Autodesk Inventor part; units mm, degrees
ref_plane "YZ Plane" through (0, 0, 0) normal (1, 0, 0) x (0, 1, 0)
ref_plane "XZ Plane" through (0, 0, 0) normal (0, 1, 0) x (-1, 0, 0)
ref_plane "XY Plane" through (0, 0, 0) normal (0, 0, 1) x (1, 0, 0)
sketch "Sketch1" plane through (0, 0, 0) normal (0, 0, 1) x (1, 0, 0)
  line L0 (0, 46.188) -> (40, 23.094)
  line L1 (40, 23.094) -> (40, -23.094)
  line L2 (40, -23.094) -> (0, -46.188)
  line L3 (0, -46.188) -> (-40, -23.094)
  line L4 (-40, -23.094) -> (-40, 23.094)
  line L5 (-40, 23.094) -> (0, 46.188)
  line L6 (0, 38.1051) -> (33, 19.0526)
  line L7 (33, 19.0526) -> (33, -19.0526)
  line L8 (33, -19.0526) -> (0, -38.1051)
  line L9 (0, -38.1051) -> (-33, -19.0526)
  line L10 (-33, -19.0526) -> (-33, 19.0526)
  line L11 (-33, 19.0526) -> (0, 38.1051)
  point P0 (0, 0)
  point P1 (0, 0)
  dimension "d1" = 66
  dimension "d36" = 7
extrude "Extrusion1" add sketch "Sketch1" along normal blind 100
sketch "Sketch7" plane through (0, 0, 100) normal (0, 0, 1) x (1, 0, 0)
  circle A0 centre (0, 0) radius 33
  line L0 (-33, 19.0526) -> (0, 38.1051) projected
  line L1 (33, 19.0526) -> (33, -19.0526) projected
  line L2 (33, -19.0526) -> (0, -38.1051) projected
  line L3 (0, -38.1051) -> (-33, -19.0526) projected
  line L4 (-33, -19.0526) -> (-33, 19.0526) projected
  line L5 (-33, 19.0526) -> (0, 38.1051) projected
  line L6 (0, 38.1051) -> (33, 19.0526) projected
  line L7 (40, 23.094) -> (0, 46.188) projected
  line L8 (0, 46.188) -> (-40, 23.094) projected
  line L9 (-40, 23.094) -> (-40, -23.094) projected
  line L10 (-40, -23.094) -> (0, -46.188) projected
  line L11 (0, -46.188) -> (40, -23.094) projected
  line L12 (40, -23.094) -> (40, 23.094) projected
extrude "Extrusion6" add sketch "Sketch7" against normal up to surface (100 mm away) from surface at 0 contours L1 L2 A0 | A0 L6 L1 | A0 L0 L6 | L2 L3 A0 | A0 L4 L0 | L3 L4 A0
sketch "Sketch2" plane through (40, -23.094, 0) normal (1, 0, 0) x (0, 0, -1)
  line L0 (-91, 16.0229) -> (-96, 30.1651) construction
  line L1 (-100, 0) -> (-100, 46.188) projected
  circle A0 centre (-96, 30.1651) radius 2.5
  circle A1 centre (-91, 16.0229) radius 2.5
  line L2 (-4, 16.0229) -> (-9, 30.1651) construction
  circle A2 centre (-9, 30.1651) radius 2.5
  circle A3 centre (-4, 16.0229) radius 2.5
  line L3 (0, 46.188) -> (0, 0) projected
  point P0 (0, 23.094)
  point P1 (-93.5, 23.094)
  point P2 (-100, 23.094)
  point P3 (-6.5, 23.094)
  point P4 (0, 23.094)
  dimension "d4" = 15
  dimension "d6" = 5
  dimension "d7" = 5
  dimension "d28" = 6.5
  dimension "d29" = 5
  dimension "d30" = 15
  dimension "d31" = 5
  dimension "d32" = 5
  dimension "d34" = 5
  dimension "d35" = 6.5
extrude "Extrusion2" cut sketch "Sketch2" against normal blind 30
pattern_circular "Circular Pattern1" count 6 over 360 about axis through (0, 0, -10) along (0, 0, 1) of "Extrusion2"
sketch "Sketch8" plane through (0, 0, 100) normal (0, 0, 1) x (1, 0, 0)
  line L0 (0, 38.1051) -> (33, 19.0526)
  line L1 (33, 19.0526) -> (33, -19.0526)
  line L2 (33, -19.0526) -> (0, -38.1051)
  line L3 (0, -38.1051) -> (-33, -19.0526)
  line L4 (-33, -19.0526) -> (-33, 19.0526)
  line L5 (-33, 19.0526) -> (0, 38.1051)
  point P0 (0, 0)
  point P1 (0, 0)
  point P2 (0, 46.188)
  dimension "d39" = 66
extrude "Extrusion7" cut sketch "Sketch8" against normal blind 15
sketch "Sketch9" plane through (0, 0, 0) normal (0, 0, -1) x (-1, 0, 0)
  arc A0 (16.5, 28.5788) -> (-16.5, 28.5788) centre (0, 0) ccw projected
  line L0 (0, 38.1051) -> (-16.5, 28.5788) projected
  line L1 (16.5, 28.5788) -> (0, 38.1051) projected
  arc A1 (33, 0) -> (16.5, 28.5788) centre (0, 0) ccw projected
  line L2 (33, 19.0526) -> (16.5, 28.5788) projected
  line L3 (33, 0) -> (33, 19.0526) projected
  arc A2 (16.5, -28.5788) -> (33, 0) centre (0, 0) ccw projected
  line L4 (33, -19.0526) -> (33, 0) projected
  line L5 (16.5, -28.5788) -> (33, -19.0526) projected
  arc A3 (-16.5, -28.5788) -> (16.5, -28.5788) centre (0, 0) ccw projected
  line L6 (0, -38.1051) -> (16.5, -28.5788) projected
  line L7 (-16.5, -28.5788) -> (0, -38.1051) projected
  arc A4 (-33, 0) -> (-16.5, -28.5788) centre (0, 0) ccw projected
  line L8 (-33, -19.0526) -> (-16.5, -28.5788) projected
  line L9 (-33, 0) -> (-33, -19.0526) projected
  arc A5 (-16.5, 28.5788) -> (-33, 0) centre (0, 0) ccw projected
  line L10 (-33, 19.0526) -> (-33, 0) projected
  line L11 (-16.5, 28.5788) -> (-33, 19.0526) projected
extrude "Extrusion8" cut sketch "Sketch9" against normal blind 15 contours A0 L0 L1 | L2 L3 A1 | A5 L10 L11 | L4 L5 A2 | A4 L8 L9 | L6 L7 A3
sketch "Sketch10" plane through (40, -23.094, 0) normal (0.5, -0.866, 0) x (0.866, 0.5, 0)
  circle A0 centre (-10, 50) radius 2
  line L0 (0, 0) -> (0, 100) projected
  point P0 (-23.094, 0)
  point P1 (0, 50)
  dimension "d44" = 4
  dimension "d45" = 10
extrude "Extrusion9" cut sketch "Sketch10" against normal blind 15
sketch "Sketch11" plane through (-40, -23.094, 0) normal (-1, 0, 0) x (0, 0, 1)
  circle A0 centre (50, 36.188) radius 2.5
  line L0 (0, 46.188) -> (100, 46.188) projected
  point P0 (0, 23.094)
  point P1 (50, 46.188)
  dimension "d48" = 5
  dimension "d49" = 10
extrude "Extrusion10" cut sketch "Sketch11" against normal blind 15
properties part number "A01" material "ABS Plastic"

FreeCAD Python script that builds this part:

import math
import FreeCAD as App
import Part
import Sketcher
Q = App.Units.Quantity


def add_polygon(sketch, points):
    """Adds a closed chain of lines whose ends are joined by coincident constraints."""
    first, n = sketch.GeometryCount, len(points)
    for a, b in zip(points, points[1:] + points[:1]):
        sketch.addGeometry(Part.LineSegment(App.Vector(*a, 0), App.Vector(*b, 0)), False)
    for i in range(n):
        sketch.addConstraint(Sketcher.Constraint("Coincident", first + i, 2, first + (i + 1) % n, 1))

doc = App.newDocument("Part")
body = doc.addObject("PartDesign::Body", "Body")

# Sketch on XY plane
sketch1 = body.newObject("Sketcher::SketchObject", "Sketch")
sketch1.AttachmentSupport = (doc.getObject("XY_Plane"), [""])
sketch1.MapMode = "FlatFace"
add_polygon(sketch1, [(40, 23), (0, 46), (-40, 23), (-40, -23), (0, -46), (40, -23)])  # lines 0-5
add_polygon(sketch1, [(-33, 19), (0, 38), (33, 19), (33, -19), (0, -38), (-33, -19)])  # lines 6-11
sketch1.addConstraint(Sketcher.Constraint("Vertical", 2))
sketch1.addConstraint(Sketcher.Constraint("Vertical", 5))
sketch1.addConstraint(Sketcher.Constraint("Vertical", 8))
sketch1.addConstraint(Sketcher.Constraint("Vertical", 11))
sketch1.addConstraint(Sketcher.Constraint("Symmetric", 0, 2, 3, 2, -1, 1))
sketch1.addConstraint(Sketcher.Constraint("Symmetric", 1, 2, 4, 2, -1, 1))
sketch1.addConstraint(Sketcher.Constraint("Symmetric", 6, 2, 9, 2, -1, 1))
sketch1.addConstraint(Sketcher.Constraint("Symmetric", 7, 2, 10, 2, -1, 1))
sketch1.addConstraint(Sketcher.Constraint("PointOnObject", 0, 2, -2))
sketch1.addConstraint(Sketcher.Constraint("PointOnObject", 6, 2, -2))
sketch1.addConstraint(Sketcher.Constraint("Parallel", 0, 3))
sketch1.addConstraint(Sketcher.Constraint("Parallel", 4, 6))
sketch1.addConstraint(Sketcher.Constraint("Parallel", 3, 7))
sketch1.addConstraint(Sketcher.Constraint("Parallel", 6, 9))
sketch1.addConstraint(Sketcher.Constraint("Horizontal", 2, 2, 4, 2))
sketch1.addConstraint(Sketcher.Constraint("DistanceX", 7, 2, 5, 2, 7.0))
sketch1.addConstraint(Sketcher.Constraint("DistanceX", 10, 2, 8, 2, 66.0))
sketch1.addConstraint(Sketcher.Constraint("Angle", 0, Q("150 deg")))
sketch1.addConstraint(Sketcher.Constraint("DistanceY", 2, 2, 2, 1, 46.188))
sketch1.addConstraint(Sketcher.Constraint("DistanceY", 8, 2, 8, 1, 38.1052))
pad1 = body.newObject("PartDesign::Pad", "Pad")
pad1.Profile = sketch1
pad1.Length = 100

# Sketch on XY plane
sketch2 = body.newObject("Sketcher::SketchObject", "Sketch001")
sketch2.AttachmentSupport = (doc.getObject("XY_Plane"), [""])
sketch2.MapMode = "FlatFace"
sketch2.AttachmentOffset = App.Placement(App.Vector(0, 0, 100), App.Rotation())
sketch2.addGeometry(Part.LineSegment(App.Vector(33, -19, 0), App.Vector(33, 0, 0)), False)
sketch2.addGeometry(Part.ArcOfCircle(Part.Circle(App.Vector(0, 0, 0), App.Vector(0, 0, 1), 33), math.radians(-60), math.radians(0)), False)
sketch2.addGeometry(Part.LineSegment(App.Vector(16, -29, 0), App.Vector(33, -19, 0)), False)
sketch2.addGeometry(Part.ArcOfCircle(Part.Circle(App.Vector(0, 0, 0), App.Vector(0, 0, 1), 33), math.radians(0), math.radians(60)), False)
sketch2.addGeometry(Part.LineSegment(App.Vector(33, 0, 0), App.Vector(33, 19, 0)), False)
sketch2.addGeometry(Part.LineSegment(App.Vector(33, 19, 0), App.Vector(16, 29, 0)), False)
sketch2.addGeometry(Part.ArcOfCircle(Part.Circle(App.Vector(0, 0, 0), App.Vector(0, 0, 1), 33), math.radians(60), math.radians(120)), False)
sketch2.addGeometry(Part.LineSegment(App.Vector(16, 29, 0), App.Vector(0, 38, 0)), False)
sketch2.addGeometry(Part.LineSegment(App.Vector(0, 38, 0), App.Vector(-16, 29, 0)), False)
sketch2.addGeometry(Part.LineSegment(App.Vector(0, -38, 0), App.Vector(16, -29, 0)), False)
sketch2.addGeometry(Part.ArcOfCircle(Part.Circle(App.Vector(0, 0, 0), App.Vector(0, 0, 1), 33), math.radians(-120), math.radians(-60)), False)
sketch2.addGeometry(Part.LineSegment(App.Vector(-16, -29, 0), App.Vector(0, -38, 0)), False)
sketch2.addGeometry(Part.ArcOfCircle(Part.Circle(App.Vector(0, 0, 0), App.Vector(0, 0, 1), 33), math.radians(120), math.radians(180)), False)
sketch2.addGeometry(Part.LineSegment(App.Vector(-16, 29, 0), App.Vector(-33, 19, 0)), False)
sketch2.addGeometry(Part.LineSegment(App.Vector(-33, 19, 0), App.Vector(-33, 0, 0)), False)
sketch2.addGeometry(Part.LineSegment(App.Vector(-33, -19, 0), App.Vector(-16, -29, 0)), False)
sketch2.addGeometry(Part.ArcOfCircle(Part.Circle(App.Vector(0, 0, 0), App.Vector(0, 0, 1), 33), math.radians(180), math.radians(240)), False)
sketch2.addGeometry(Part.LineSegment(App.Vector(-33, 0, 0), App.Vector(-33, -19, 0)), False)
sketch2.addConstraint(Sketcher.Constraint("Tangent", 0, 2, 1, 2))
sketch2.addConstraint(Sketcher.Constraint("Tangent", 1, 1, 2, 1))
sketch2.addConstraint(Sketcher.Constraint("Coincident", 2, 2, 0, 1))
sketch2.addConstraint(Sketcher.Constraint("Tangent", 3, 1, 4, 1))
sketch2.addConstraint(Sketcher.Constraint("Coincident", 4, 2, 5, 1))
sketch2.addConstraint(Sketcher.Constraint("Tangent", 5, 2, 3, 2))
sketch2.addConstraint(Sketcher.Constraint("Tangent", 6, 1, 7, 1))
sketch2.addConstraint(Sketcher.Constraint("Coincident", 7, 2, 8, 1))
sketch2.addConstraint(Sketcher.Constraint("Tangent", 8, 2, 6, 2))
sketch2.addConstraint(Sketcher.Constraint("Tangent", 9, 2, 10, 2))
sketch2.addConstraint(Sketcher.Constraint("Tangent", 10, 1, 11, 1))
sketch2.addConstraint(Sketcher.Constraint("Coincident", 11, 2, 9, 1))
sketch2.addConstraint(Sketcher.Constraint("Tangent", 12, 1, 13, 1))
sketch2.addConstraint(Sketcher.Constraint("Coincident", 13, 2, 14, 1))
sketch2.addConstraint(Sketcher.Constraint("Tangent", 14, 2, 12, 2))
sketch2.addConstraint(Sketcher.Constraint("Tangent", 15, 2, 16, 2))
sketch2.addConstraint(Sketcher.Constraint("Tangent", 16, 1, 17, 1))
sketch2.addConstraint(Sketcher.Constraint("Coincident", 17, 2, 15, 1))
sketch2.addConstraint(Sketcher.Constraint("Vertical", 0))
sketch2.addConstraint(Sketcher.Constraint("Vertical", 4))
sketch2.addConstraint(Sketcher.Constraint("Vertical", 14))
sketch2.addConstraint(Sketcher.Constraint("Vertical", 17))
sketch2.addConstraint(Sketcher.Constraint("Coincident", 1, 3, -1, 1))
sketch2.addConstraint(Sketcher.Constraint("Coincident", 3, 3, -1, 1))
sketch2.addConstraint(Sketcher.Constraint("Coincident", 6, 3, -1, 1))
sketch2.addConstraint(Sketcher.Constraint("Coincident", 10, 3, -1, 1))
sketch2.addConstraint(Sketcher.Constraint("Coincident", 12, 3, -1, 1))
sketch2.addConstraint(Sketcher.Constraint("Coincident", 16, 3, -1, 1))
sketch2.addConstraint(Sketcher.Constraint("Coincident", 6, 1, 5, 2))
sketch2.addConstraint(Sketcher.Constraint("Coincident", 9, 2, 1, 1))
sketch2.addConstraint(Sketcher.Constraint("Coincident", 12, 1, 8, 2))
sketch2.addConstraint(Sketcher.Constraint("Coincident", 15, 2, 10, 1))
sketch2.addConstraint(Sketcher.Constraint("Equal", 1, 3))
sketch2.addConstraint(Sketcher.Constraint("Symmetric", 7, 2, 11, 2, -1, 1))
sketch2.addConstraint(Sketcher.Constraint("PointOnObject", 7, 2, -2))
sketch2.addConstraint(Sketcher.Constraint("Equal", 5, 7))
sketch2.addConstraint(Sketcher.Constraint("Radius", 1, 33.0))
pad2 = body.newObject("PartDesign::Pad", "Pad001")
pad2.Profile = sketch2
pad2.Length = 100
pad2.Reversed = True

# Sketch on YZ plane
sketch3 = body.newObject("Sketcher::SketchObject", "Sketch002")
sketch3.AttachmentSupport = (doc.getObject("YZ_Plane"), [""])
sketch3.MapMode = "FlatFace"
sketch3.AttachmentOffset = App.Placement(App.Vector(0, 0, 40), App.Rotation())
sketch3.addGeometry(Part.Circle(App.Vector(7.1, 96, 0), App.Vector(0, 0, 1), 2.5), False)
sketch3.addGeometry(Part.Circle(App.Vector(-7.1, 91, 0), App.Vector(0, 0, 1), 2.5), False)
sketch3.addGeometry(Part.Circle(App.Vector(7.1, 9, 0), App.Vector(0, 0, 1), 2.5), False)
sketch3.addGeometry(Part.Circle(App.Vector(-7.1, 4, 0), App.Vector(0, 0, 1), 2.5), False)
sketch3.addConstraint(Sketcher.Constraint("Equal", 0, 1))
sketch3.addConstraint(Sketcher.Constraint("Equal", 1, 2))
sketch3.addConstraint(Sketcher.Constraint("Equal", 2, 3))
sketch3.addConstraint(Sketcher.Constraint("Vertical", 0, 3, 2, 3))
sketch3.addConstraint(Sketcher.Constraint("Vertical", 1, 3, 3, 3))
sketch3.addConstraint(Sketcher.Constraint("Diameter", 0, 5.0))
sketch3.addConstraint(Sketcher.Constraint("DistanceY", 1, 3, 0, 3, 5.0))
sketch3.addConstraint(Sketcher.Constraint("DistanceY", 3, 3, 2, 3, 5.0))
sketch3.addConstraint(Sketcher.Constraint("DistanceY", -1, 1, 0, 3, 96.0))
sketch3.addConstraint(Sketcher.Constraint("DistanceY", -1, 1, 2, 3, 9.0))
sketch3.addConstraint(Sketcher.Constraint("DistanceX", -1, 1, 0, 3, 7.071))
sketch3.addConstraint(Sketcher.Constraint("DistanceX", 1, 3, -1, 1, 7.071))
pocket1 = body.newObject("PartDesign::Pocket", "Pocket")
pocket1.Profile = sketch3
pocket1.Length = 30
doc.recompute()

polarpattern = body.newObject("PartDesign::PolarPattern", "PolarPattern")
polarpattern.Originals = [pocket1]
polarpattern.Axis = (doc.getObject("Z_Axis"), [""])
polarpattern.Angle = 360
polarpattern.Occurrences = 6
body.Tip = polarpattern

# Sketch on XY plane
sketch4 = body.newObject("Sketcher::SketchObject", "Sketch003")
sketch4.AttachmentSupport = (doc.getObject("XY_Plane"), [""])
sketch4.MapMode = "FlatFace"
sketch4.AttachmentOffset = App.Placement(App.Vector(0, 0, 100), App.Rotation())
add_polygon(sketch4, [(33, 19), (0, 38), (-33, 19), (-33, -19), (0, -38), (33, -19)])  # lines 0-5
sketch4.addConstraint(Sketcher.Constraint("Vertical", 2))
sketch4.addConstraint(Sketcher.Constraint("Vertical", 5))
sketch4.addConstraint(Sketcher.Constraint("Symmetric", 0, 2, 3, 2, -1, 1))
sketch4.addConstraint(Sketcher.Constraint("Symmetric", 1, 2, 4, 2, -1, 1))
sketch4.addConstraint(Sketcher.Constraint("PointOnObject", 0, 2, -2))
sketch4.addConstraint(Sketcher.Constraint("Parallel", 0, 3))
sketch4.addConstraint(Sketcher.Constraint("Horizontal", 2, 2, 4, 2))
sketch4.addConstraint(Sketcher.Constraint("DistanceX", 2, 2, 4, 2, 66.0))
sketch4.addConstraint(Sketcher.Constraint("Angle", 0, Q("150 deg")))
sketch4.addConstraint(Sketcher.Constraint("DistanceY", 2, 2, 2, 1, 38.1052))
pocket2 = body.newObject("PartDesign::Pocket", "Pocket001")
pocket2.Profile = sketch4
pocket2.Length = 15

# Sketch on XY plane
sketch5 = body.newObject("Sketcher::SketchObject", "Sketch004")
sketch5.AttachmentSupport = (doc.getObject("XY_Plane"), [""])
sketch5.MapMode = "FlatFace"
sketch5.addGeometry(Part.ArcOfCircle(Part.Circle(App.Vector(0, 0, 0), App.Vector(0, 0, 1), 33), math.radians(60), math.radians(120)), False)
sketch5.addGeometry(Part.LineSegment(App.Vector(-16, 29, 0), App.Vector(0, 38, 0)), False)
sketch5.addGeometry(Part.LineSegment(App.Vector(0, 38, 0), App.Vector(16, 29, 0)), False)
sketch5.addGeometry(Part.LineSegment(App.Vector(-33, 19, 0), App.Vector(-16, 29, 0)), False)
sketch5.addGeometry(Part.ArcOfCircle(Part.Circle(App.Vector(0, 0, 0), App.Vector(0, 0, 1), 33), math.radians(120), math.radians(180)), False)
sketch5.addGeometry(Part.LineSegment(App.Vector(-33, 0, 0), App.Vector(-33, 19, 0)), False)
sketch5.addGeometry(Part.ArcOfCircle(Part.Circle(App.Vector(0, 0, 0), App.Vector(0, 0, 1), 33), math.radians(0), math.radians(60)), False)
sketch5.addGeometry(Part.LineSegment(App.Vector(16, 29, 0), App.Vector(33, 19, 0)), False)
sketch5.addGeometry(Part.LineSegment(App.Vector(33, 19, 0), App.Vector(33, 0, 0)), False)
sketch5.addGeometry(Part.LineSegment(App.Vector(-33, -19, 0), App.Vector(-33, 0, 0)), False)
sketch5.addGeometry(Part.ArcOfCircle(Part.Circle(App.Vector(0, 0, 0), App.Vector(0, 0, 1), 33), math.radians(180), math.radians(240)), False)
sketch5.addGeometry(Part.LineSegment(App.Vector(-16, -29, 0), App.Vector(-33, -19, 0)), False)
sketch5.addGeometry(Part.ArcOfCircle(Part.Circle(App.Vector(0, 0, 0), App.Vector(0, 0, 1), 33), math.radians(-60), math.radians(0)), False)
sketch5.addGeometry(Part.LineSegment(App.Vector(33, 0, 0), App.Vector(33, -19, 0)), False)
sketch5.addGeometry(Part.LineSegment(App.Vector(33, -19, 0), App.Vector(16, -29, 0)), False)
sketch5.addGeometry(Part.LineSegment(App.Vector(0, -38, 0), App.Vector(-16, -29, 0)), False)
sketch5.addGeometry(Part.ArcOfCircle(Part.Circle(App.Vector(0, 0, 0), App.Vector(0, 0, 1), 33), math.radians(-120), math.radians(-60)), False)
sketch5.addGeometry(Part.LineSegment(App.Vector(16, -29, 0), App.Vector(0, -38, 0)), False)
sketch5.addConstraint(Sketcher.Constraint("Tangent", 0, 2, 1, 1))
sketch5.addConstraint(Sketcher.Constraint("Coincident", 1, 2, 2, 1))
sketch5.addConstraint(Sketcher.Constraint("Tangent", 2, 2, 0, 1))
sketch5.addConstraint(Sketcher.Constraint("Tangent", 3, 2, 4, 1))
sketch5.addConstraint(Sketcher.Constraint("Tangent", 4, 2, 5, 1))
sketch5.addConstraint(Sketcher.Constraint("Coincident", 5, 2, 3, 1))
sketch5.addConstraint(Sketcher.Constraint("Tangent", 6, 2, 7, 1))
sketch5.addConstraint(Sketcher.Constraint("Coincident", 7, 2, 8, 1))
sketch5.addConstraint(Sketcher.Constraint("Tangent", 8, 2, 6, 1))
sketch5.addConstraint(Sketcher.Constraint("Tangent", 9, 2, 10, 1))
sketch5.addConstraint(Sketcher.Constraint("Tangent", 10, 2, 11, 1))
sketch5.addConstraint(Sketcher.Constraint("Coincident", 11, 2, 9, 1))
sketch5.addConstraint(Sketcher.Constraint("Tangent", 12, 2, 13, 1))
sketch5.addConstraint(Sketcher.Constraint("Coincident", 13, 2, 14, 1))
sketch5.addConstraint(Sketcher.Constraint("Tangent", 14, 2, 12, 1))
sketch5.addConstraint(Sketcher.Constraint("Tangent", 15, 2, 16, 1))
sketch5.addConstraint(Sketcher.Constraint("Tangent", 16, 2, 17, 1))
sketch5.addConstraint(Sketcher.Constraint("Coincident", 17, 2, 15, 1))
sketch5.addConstraint(Sketcher.Constraint("Vertical", 5))
sketch5.addConstraint(Sketcher.Constraint("Vertical", 8))
sketch5.addConstraint(Sketcher.Constraint("Vertical", 9))
sketch5.addConstraint(Sketcher.Constraint("Vertical", 13))
sketch5.addConstraint(Sketcher.Constraint("Coincident", 0, 3, -1, 1))
sketch5.addConstraint(Sketcher.Constraint("Coincident", 4, 3, -1, 1))
sketch5.addConstraint(Sketcher.Constraint("Coincident", 6, 3, -1, 1))
sketch5.addConstraint(Sketcher.Constraint("Coincident", 10, 3, -1, 1))
sketch5.addConstraint(Sketcher.Constraint("Coincident", 12, 3, -1, 1))
sketch5.addConstraint(Sketcher.Constraint("Coincident", 16, 3, -1, 1))
sketch5.addConstraint(Sketcher.Constraint("Coincident", 3, 2, 0, 2))
sketch5.addConstraint(Sketcher.Constraint("Coincident", 6, 2, 2, 2))
sketch5.addConstraint(Sketcher.Constraint("Coincident", 15, 2, 10, 2))
sketch5.addConstraint(Sketcher.Constraint("Coincident", 16, 2, 14, 2))
sketch5.addConstraint(Sketcher.Constraint("Equal", 6, 10))
sketch5.addConstraint(Sketcher.Constraint("Symmetric", 1, 2, 17, 2, -1, 1))
sketch5.addConstraint(Sketcher.Constraint("PointOnObject", 1, 2, -2))
sketch5.addConstraint(Sketcher.Constraint("Equal", 2, 3))
sketch5.addConstraint(Sketcher.Constraint("Radius", 0, 33.0))
pocket3 = body.newObject("PartDesign::Pocket", "Pocket002")
pocket3.Profile = sketch5
pocket3.Length = 15
pocket3.Reversed = True

# Sketch on an angled plane
sketch6 = body.newObject("Sketcher::SketchObject", "Sketch005")
sketch6.Placement = App.Placement(App.Vector(40, -23.094, 0), App.Rotation(App.Vector(0.866025404, 0.5, 0), App.Vector(0, 0, 1), App.Vector(0.5, -0.866025404, 0), "ZXY"))
sketch6.addGeometry(Part.Circle(App.Vector(-10, 50, 0), App.Vector(0, 0, 1), 2), False)
sketch6.addConstraint(Sketcher.Constraint("Diameter", 0, 4.0))
sketch6.addConstraint(Sketcher.Constraint("DistanceX", 0, 3, -1, 1, 10.0))
sketch6.addConstraint(Sketcher.Constraint("DistanceY", -1, 1, 0, 3, 50.0))
pocket4 = body.newObject("PartDesign::Pocket", "Pocket003")
pocket4.Profile = sketch6
pocket4.Length = 15

# Sketch on YZ plane
sketch7 = body.newObject("Sketcher::SketchObject", "Sketch006")
sketch7.AttachmentSupport = (doc.getObject("YZ_Plane"), [""])
sketch7.MapMode = "FlatFace"
sketch7.AttachmentOffset = App.Placement(App.Vector(0, 0, -40), App.Rotation())
sketch7.addGeometry(Part.Circle(App.Vector(13.1, 50, 0), App.Vector(0, 0, 1), 2.5), False)
sketch7.addConstraint(Sketcher.Constraint("Diameter", 0, 5.0))
sketch7.addConstraint(Sketcher.Constraint("DistanceY", -1, 1, 0, 3, 50.0))
sketch7.addConstraint(Sketcher.Constraint("DistanceX", -1, 1, 0, 3, 13.094))
pocket5 = body.newObject("PartDesign::Pocket", "Pocket004")
pocket5.Profile = sketch7
pocket5.Length = 15
pocket5.Reversed = True

doc.recompute()
